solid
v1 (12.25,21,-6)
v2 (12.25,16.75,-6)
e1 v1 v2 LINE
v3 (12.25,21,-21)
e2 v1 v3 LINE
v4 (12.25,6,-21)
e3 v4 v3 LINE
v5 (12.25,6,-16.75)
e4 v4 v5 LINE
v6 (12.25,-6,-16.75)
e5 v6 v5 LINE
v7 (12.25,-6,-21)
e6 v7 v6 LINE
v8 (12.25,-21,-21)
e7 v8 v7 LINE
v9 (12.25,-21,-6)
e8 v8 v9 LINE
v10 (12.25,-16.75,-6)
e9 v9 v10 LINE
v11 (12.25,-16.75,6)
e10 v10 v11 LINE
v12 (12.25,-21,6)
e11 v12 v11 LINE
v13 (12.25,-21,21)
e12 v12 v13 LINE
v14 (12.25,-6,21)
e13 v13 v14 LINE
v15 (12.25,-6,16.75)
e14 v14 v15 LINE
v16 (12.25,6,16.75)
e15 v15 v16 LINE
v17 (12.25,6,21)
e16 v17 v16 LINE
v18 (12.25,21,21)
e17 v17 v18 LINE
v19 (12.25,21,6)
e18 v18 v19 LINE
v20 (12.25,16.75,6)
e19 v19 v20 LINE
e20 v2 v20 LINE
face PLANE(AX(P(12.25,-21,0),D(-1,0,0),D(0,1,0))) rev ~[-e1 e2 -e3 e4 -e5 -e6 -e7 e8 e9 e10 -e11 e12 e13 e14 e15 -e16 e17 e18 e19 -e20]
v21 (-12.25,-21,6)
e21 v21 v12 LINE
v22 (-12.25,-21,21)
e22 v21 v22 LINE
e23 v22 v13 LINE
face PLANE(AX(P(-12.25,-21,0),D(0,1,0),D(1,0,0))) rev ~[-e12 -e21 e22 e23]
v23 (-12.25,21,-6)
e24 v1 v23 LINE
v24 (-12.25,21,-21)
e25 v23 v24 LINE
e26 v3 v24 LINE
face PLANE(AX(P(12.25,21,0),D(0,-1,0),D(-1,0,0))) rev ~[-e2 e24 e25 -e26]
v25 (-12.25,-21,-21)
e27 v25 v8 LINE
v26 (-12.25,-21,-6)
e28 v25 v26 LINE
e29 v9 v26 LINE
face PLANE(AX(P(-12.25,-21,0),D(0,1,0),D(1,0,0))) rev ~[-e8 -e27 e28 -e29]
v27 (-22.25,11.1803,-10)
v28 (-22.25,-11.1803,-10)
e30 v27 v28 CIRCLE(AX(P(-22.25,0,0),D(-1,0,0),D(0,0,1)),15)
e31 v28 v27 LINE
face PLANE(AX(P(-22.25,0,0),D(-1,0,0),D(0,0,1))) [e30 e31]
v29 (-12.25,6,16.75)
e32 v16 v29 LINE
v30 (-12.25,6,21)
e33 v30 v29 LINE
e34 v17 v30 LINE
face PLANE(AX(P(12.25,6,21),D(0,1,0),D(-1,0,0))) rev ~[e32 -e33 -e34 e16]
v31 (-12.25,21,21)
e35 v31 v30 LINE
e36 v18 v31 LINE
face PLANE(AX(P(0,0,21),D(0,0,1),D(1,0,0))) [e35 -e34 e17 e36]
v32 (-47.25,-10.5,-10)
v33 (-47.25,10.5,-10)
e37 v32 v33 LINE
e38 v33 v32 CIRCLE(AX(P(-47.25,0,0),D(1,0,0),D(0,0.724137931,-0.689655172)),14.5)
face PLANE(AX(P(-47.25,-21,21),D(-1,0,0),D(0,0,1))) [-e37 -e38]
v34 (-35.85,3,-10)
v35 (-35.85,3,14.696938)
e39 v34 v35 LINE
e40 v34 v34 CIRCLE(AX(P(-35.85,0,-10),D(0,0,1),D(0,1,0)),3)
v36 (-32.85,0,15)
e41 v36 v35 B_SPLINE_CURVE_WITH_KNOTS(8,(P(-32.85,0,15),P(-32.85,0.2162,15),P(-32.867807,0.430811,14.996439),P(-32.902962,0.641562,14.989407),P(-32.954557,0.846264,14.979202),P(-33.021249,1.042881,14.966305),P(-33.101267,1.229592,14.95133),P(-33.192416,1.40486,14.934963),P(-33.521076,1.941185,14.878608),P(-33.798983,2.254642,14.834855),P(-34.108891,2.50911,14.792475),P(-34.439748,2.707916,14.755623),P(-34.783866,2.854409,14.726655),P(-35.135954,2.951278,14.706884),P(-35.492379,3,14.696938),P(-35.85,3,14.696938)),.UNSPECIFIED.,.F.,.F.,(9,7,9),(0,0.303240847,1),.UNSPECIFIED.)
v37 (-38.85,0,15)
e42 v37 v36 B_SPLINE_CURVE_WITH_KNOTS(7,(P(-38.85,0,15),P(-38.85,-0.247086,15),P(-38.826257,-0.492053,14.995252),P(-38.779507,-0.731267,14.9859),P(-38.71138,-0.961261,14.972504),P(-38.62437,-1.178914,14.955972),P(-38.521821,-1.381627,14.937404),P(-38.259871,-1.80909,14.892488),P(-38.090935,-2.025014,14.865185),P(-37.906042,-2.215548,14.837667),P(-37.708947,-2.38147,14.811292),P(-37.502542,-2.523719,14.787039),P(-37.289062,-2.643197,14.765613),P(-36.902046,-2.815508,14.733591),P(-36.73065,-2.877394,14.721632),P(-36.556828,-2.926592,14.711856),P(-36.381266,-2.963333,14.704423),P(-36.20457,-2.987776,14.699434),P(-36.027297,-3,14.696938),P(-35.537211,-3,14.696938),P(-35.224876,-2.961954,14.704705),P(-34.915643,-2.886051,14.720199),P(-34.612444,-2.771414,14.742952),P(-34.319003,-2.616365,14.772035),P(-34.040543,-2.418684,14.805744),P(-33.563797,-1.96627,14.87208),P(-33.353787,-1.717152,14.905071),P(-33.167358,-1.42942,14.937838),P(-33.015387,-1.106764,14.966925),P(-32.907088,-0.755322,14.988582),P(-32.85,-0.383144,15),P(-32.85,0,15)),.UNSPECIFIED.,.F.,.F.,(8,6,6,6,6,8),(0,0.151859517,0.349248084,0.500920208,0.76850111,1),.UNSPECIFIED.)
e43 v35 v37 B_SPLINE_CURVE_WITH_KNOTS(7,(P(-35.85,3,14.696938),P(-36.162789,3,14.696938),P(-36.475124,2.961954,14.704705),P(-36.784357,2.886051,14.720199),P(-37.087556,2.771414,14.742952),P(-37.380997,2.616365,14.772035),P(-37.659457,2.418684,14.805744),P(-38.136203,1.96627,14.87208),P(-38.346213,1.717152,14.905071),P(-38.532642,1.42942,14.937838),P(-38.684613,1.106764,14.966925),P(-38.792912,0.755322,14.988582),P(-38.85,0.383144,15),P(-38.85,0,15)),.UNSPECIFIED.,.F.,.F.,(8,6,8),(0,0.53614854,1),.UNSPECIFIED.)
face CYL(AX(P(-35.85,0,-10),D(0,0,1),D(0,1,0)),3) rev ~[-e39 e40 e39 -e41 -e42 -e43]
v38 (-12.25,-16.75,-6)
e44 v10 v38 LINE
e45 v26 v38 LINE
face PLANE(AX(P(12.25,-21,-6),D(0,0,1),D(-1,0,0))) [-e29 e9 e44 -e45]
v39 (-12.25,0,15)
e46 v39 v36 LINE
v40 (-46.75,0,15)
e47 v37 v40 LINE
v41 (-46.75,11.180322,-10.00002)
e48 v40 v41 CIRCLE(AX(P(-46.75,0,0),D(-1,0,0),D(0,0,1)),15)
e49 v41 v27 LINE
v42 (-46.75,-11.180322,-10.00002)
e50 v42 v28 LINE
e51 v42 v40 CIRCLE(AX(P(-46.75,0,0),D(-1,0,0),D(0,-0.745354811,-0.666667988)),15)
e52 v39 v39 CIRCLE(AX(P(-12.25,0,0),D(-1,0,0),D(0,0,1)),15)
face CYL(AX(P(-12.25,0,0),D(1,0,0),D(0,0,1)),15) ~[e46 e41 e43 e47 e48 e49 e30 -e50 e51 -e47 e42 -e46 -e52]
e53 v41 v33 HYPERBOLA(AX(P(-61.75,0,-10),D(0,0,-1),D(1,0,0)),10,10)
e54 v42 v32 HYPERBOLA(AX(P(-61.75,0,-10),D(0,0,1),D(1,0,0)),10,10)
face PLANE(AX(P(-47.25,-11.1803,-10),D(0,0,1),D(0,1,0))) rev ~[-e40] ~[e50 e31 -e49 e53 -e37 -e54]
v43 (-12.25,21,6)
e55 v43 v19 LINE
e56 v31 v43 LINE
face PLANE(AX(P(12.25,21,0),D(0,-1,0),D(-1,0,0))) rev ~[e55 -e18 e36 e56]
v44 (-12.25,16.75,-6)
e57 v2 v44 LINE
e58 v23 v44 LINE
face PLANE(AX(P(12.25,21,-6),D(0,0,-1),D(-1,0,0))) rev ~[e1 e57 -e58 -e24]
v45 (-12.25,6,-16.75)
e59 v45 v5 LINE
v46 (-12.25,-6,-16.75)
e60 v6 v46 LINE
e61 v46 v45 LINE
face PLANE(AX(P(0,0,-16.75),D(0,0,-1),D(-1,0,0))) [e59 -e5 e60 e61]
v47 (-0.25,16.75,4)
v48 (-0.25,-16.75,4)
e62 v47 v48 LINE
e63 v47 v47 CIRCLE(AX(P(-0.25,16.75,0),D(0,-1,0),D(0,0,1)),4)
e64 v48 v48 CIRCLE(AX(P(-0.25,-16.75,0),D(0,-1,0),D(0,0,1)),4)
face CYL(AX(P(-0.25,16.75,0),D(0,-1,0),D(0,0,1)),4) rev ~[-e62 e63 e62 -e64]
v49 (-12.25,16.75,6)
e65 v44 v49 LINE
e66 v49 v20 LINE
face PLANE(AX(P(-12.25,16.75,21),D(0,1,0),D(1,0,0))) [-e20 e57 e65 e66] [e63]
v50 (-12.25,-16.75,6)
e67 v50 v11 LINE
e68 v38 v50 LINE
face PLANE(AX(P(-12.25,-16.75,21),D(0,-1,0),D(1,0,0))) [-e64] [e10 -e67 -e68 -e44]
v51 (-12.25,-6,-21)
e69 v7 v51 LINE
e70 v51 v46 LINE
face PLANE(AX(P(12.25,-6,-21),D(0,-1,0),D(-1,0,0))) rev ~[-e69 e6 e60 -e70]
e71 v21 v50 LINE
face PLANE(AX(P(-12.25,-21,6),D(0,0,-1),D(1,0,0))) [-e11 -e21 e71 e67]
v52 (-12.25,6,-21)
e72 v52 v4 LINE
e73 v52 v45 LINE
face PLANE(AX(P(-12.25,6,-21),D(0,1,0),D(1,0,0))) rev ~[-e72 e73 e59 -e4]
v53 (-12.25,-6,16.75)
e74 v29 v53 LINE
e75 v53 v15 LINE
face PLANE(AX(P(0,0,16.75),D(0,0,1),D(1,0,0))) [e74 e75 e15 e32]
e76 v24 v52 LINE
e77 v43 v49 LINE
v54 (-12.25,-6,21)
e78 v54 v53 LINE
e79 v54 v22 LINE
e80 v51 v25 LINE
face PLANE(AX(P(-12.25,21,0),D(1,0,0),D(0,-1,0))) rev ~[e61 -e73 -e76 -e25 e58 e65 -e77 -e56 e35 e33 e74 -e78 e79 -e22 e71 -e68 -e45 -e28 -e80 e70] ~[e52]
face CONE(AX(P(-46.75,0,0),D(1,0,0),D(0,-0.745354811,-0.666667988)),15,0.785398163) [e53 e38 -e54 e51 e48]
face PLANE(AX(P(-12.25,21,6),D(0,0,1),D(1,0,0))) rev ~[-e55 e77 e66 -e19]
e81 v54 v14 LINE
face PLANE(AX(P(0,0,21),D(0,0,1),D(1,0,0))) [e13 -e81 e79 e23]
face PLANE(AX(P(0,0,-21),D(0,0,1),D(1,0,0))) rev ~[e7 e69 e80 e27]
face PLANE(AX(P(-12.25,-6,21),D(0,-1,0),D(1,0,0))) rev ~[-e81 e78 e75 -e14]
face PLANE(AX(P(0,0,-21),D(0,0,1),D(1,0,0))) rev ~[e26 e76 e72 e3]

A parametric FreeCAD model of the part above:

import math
import FreeCAD as App
import Part
import Sketcher
from FreeCAD import Vector
Q = App.Units.Quantity


def edges_at(feature, points):
    """Names of the edges that pass closest to the given points."""
    edges = feature.Shape.Edges
    near = lambda p: min(range(len(edges)), key=lambda i: edges[i].distToShape(Part.Vertex(*p))[0])
    return sorted({f"Edge{near(p) + 1}" for p in points})


def add_polygon(sketch, points):
    """Adds a closed chain of lines whose ends are joined by coincident constraints."""
    first, n = sketch.GeometryCount, len(points)
    for a, b in zip(points, points[1:] + points[:1]):
        sketch.addGeometry(Part.LineSegment(App.Vector(*a, 0), App.Vector(*b, 0)), False)
    for i in range(n):
        sketch.addConstraint(Sketcher.Constraint("Coincident", first + i, 2, first + (i + 1) % n, 1))

doc = App.newDocument("Part")
body = doc.addObject("PartDesign::Body", "Body")

# Sketch on XY plane
sketch1 = body.newObject("Sketcher::SketchObject", "Sketch")
sketch1.AttachmentSupport = (doc.getObject("XY_Plane"), [""])
sketch1.MapMode = "FlatFace"
add_polygon(sketch1, [(-12, 21), (-12, -21), (12, -21), (12, 21)])  # lines 0-3
sketch1.addConstraint([
    Sketcher.Constraint("Vertical", 0),
    Sketcher.Constraint("Horizontal", 1),
    Sketcher.Constraint("Vertical", 2),
    Sketcher.Constraint("Horizontal", 3),
    Sketcher.Constraint("Symmetric", 0, 2, 2, 2, -1, 1),
    Sketcher.Constraint("DistanceY", 0, 2, 0, 1, Q("42 mm")),
    Sketcher.Constraint("DistanceX", 1, 1, 1, 2, Q("24.5 mm")),
])
pad1 = body.newObject("PartDesign::Pad", "Pad")
pad1.Profile = sketch1
pad1.Length = 42
pad1.Midplane = True

# Sketch on YZ plane
sketch2 = body.newObject("Sketcher::SketchObject", "Sketch001")
sketch2.AttachmentSupport = (doc.getObject("YZ_Plane"), [""])
sketch2.MapMode = "FlatFace"
sketch2.AttachmentOffset = App.Placement(Vector(0, 0, -12.25), App.Rotation())
sketch2.addGeometry(Part.Circle(Vector(0, 0, 0), Vector(0, 0, 1), 15), False)
sketch2.addConstraint([
    Sketcher.Constraint("Coincident", 0, 3, -1, 1),
    Sketcher.Constraint("Diameter", 0, Q("30 mm")),
])
pad2 = body.newObject("PartDesign::Pad", "Pad001")
pad2.Profile = sketch2
pad2.Length = 35
pad2.Reversed = True

# Sketch on YZ plane
sketch3 = body.newObject("Sketcher::SketchObject", "Sketch002")
sketch3.AttachmentSupport = (doc.getObject("YZ_Plane"), [""])
sketch3.MapMode = "FlatFace"
sketch3.AttachmentOffset = App.Placement(Vector(0, 0, -47.25), App.Rotation())
sketch3.addGeometry([
    Part.LineSegment(Vector(-11, -10, 0), Vector(11, -10, 0)),
    Part.ArcOfCircle(Part.Circle(Vector(0, 0, 0), Vector(0, 0, 1), 15), math.radians(-138), math.radians(-42)),
], False)
sketch3.addConstraint([
    Sketcher.Constraint("Coincident", 0, 1, 1, 1),
    Sketcher.Constraint("Coincident", 1, 2, 0, 2),
    Sketcher.Constraint("Horizontal", 0),
    Sketcher.Constraint("Coincident", 1, 3, -1, 1),
    Sketcher.Constraint("Radius", 1, Q("15 mm")),
    Sketcher.Constraint("DistanceY", 0, 1, -1, 1, Q("10 mm")),
])
pocket1 = body.newObject("PartDesign::Pocket", "Pocket")
pocket1.Profile = sketch3
pocket1.Length = 25
pocket1.Reversed = True
doc.recompute()

chamfer = body.newObject("PartDesign::Chamfer", "Chamfer")
chamfer.Base = (pocket1, edges_at(pocket1, [(-47.25, -13.693, 6.124), (-47.25, 13.693, 6.124)]))
chamfer.Size = 0.5

# Sketch on XZ plane
sketch4 = body.newObject("Sketcher::SketchObject", "Sketch003")
sketch4.AttachmentSupport = (doc.getObject("XZ_Plane"), [""])
sketch4.MapMode = "FlatFace"
sketch4.AttachmentOffset = App.Placement(Vector(0, 0, -21), App.Rotation())
add_polygon(sketch4, [(12, 6), (12, -6), (-12, -6), (-12, 6)])  # lines 0-3
sketch4.addConstraint([
    Sketcher.Constraint("Vertical", 0),
    Sketcher.Constraint("Horizontal", 1),
    Sketcher.Constraint("Vertical", 2),
    Sketcher.Constraint("Horizontal", 3),
    Sketcher.Constraint("Symmetric", 0, 2, 2, 2, -1, 1),
    Sketcher.Constraint("DistanceY", 0, 2, 0, 1, Q("12 mm")),
    Sketcher.Constraint("DistanceX", 1, 2, 1, 1, Q("24.5 mm")),
])
pocket2 = body.newObject("PartDesign::Pocket", "Pocket001")
pocket2.Profile = sketch4
pocket2.Length = 4.25
pocket2.Reversed = True

# Sketch on XZ plane
sketch5 = body.newObject("Sketcher::SketchObject", "Sketch004")
sketch5.AttachmentSupport = (doc.getObject("XZ_Plane"), [""])
sketch5.MapMode = "FlatFace"
sketch5.AttachmentOffset = App.Placement(Vector(0, 0, 21), App.Rotation())
add_polygon(sketch5, [(-12, -6), (12, -6), (12, 6), (-12, 6)])  # lines 0-3
sketch5.addConstraint([
    Sketcher.Constraint("Horizontal", 0),
    Sketcher.Constraint("Vertical", 1),
    Sketcher.Constraint("Horizontal", 2),
    Sketcher.Constraint("Vertical", 3),
    Sketcher.Constraint("Symmetric", 0, 2, 2, 2, -1, 1),
    Sketcher.Constraint("DistanceY", 1, 1, 1, 2, Q("12 mm")),
    Sketcher.Constraint("DistanceX", 0, 1, 0, 2, Q("24.5 mm")),
])
pocket3 = body.newObject("PartDesign::Pocket", "Pocket002")
pocket3.Profile = sketch5
pocket3.Length = 4.25

# Sketch on XY plane
sketch6 = body.newObject("Sketcher::SketchObject", "Sketch005")
sketch6.AttachmentSupport = (doc.getObject("XY_Plane"), [""])
sketch6.MapMode = "FlatFace"
sketch6.AttachmentOffset = App.Placement(Vector(0, 0, -21), App.Rotation())
add_polygon(sketch6, [(12, 6), (12, -6), (-12, -6), (-12, 6)])  # lines 0-3
sketch6.addConstraint([
    Sketcher.Constraint("Vertical", 0),
    Sketcher.Constraint("Horizontal", 1),
    Sketcher.Constraint("Vertical", 2),
    Sketcher.Constraint("Horizontal", 3),
    Sketcher.Constraint("Symmetric", 0, 2, 2, 2, -1, 1),
    Sketcher.Constraint("DistanceY", 0, 2, 0, 1, Q("12 mm")),
    Sketcher.Constraint("DistanceX", 1, 2, 1, 1, Q("24.5 mm")),
])
pocket4 = body.newObject("PartDesign::Pocket", "Pocket003")
pocket4.Profile = sketch6
pocket4.Length = 4.25
pocket4.Reversed = True

# Sketch on XY plane
sketch7 = body.newObject("Sketcher::SketchObject", "Sketch006")
sketch7.AttachmentSupport = (doc.getObject("XY_Plane"), [""])
sketch7.MapMode = "FlatFace"
sketch7.AttachmentOffset = App.Placement(Vector(0, 0, 21), App.Rotation())
add_polygon(sketch7, [(12, 6), (-12, 6), (-12, -6), (12, -6)])  # lines 0-3
sketch7.addConstraint([
    Sketcher.Constraint("Horizontal", 0),
    Sketcher.Constraint("Vertical", 1),
    Sketcher.Constraint("Horizontal", 2),
    Sketcher.Constraint("Vertical", 3),
    Sketcher.Constraint("Symmetric", 0, 2, 2, 2, -1, 1),
    Sketcher.Constraint("DistanceY", 1, 2, 1, 1, Q("12 mm")),
    Sketcher.Constraint("DistanceX", 0, 2, 0, 1, Q("24.5 mm")),
])
pocket5 = body.newObject("PartDesign::Pocket", "Pocket004")
pocket5.Profile = sketch7
pocket5.Length = 4.25

# Sketch on XY plane
sketch8 = body.newObject("Sketcher::SketchObject", "Sketch007")
sketch8.AttachmentSupport = (doc.getObject("XY_Plane"), [""])
sketch8.MapMode = "FlatFace"
sketch8.AttachmentOffset = App.Placement(Vector(0, 0, -10), App.Rotation())
sketch8.addGeometry(Part.Circle(Vector(-35.9, 0, 0), Vector(0, 0, 1), 3), False)
sketch8.addConstraint([
    Sketcher.Constraint("PointOnObject", 0, 3, -1),
    Sketcher.Constraint("Diameter", 0, Q("6 mm")),
    Sketcher.Constraint("DistanceX", 0, 3, -1, 1, Q("35.85 mm")),
])
doc.recompute()
hole = body.newObject("PartDesign::Hole", "Hole")
hole.Profile = sketch8
hole.ThreadType = "None"
hole.Diameter = 6
hole.DepthType = "ThroughAll"
hole.Reversed = True

# Sketch on XZ plane
sketch9 = body.newObject("Sketcher::SketchObject", "Sketch008")
sketch9.AttachmentSupport = (doc.getObject("XZ_Plane"), [""])
sketch9.MapMode = "FlatFace"
sketch9.AttachmentOffset = App.Placement(Vector(0, 0, -16.75), App.Rotation())
sketch9.addGeometry(Part.Circle(Vector(-0.2, 0, 0), Vector(0, 0, 1), 4), False)
sketch9.addConstraint([
    Sketcher.Constraint("PointOnObject", 0, 3, -1),
    Sketcher.Constraint("Diameter", 0, Q("8 mm")),
    Sketcher.Constraint("DistanceX", 0, 3, -1, 1, Q("0.25 mm")),
])
doc.recompute()
hole2 = body.newObject("PartDesign::Hole", "Hole001")
hole2.Profile = sketch9
hole2.ThreadType = "None"
hole2.Diameter = 8
hole2.DepthType = "ThroughAll"
hole2.Reversed = True

doc.recompute()
